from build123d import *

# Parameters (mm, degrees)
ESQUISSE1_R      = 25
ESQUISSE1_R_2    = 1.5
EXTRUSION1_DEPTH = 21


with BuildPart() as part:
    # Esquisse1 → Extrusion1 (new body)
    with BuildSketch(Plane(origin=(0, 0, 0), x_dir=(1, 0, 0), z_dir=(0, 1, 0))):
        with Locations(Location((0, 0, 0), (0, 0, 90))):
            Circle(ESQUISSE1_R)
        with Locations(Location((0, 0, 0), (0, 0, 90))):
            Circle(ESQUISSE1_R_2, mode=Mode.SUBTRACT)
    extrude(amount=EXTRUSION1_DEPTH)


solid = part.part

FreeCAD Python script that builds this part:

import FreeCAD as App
import Part
import Sketcher
Q = App.Units.Quantity

doc = App.newDocument("Part")
body = doc.addObject("PartDesign::Body", "Body")

# Sketch on XZ plane
sketch1 = body.newObject("Sketcher::SketchObject", "Sketch")
sketch1.AttachmentSupport = (doc.getObject("XZ_Plane"), [""])
sketch1.MapMode = "FlatFace"
sketch1.addGeometry([
    Part.Circle(App.Vector(0, 0, 0), App.Vector(0, 0, 1), 25),
    Part.Circle(App.Vector(0, 0, 0), App.Vector(0, 0, 1), 1.5),
], False)
sketch1.addConstraint([
    Sketcher.Constraint("Coincident", 0, 3, -1, 1),
    Sketcher.Constraint("Coincident", 1, 3, -1, 1),
    Sketcher.Constraint("Diameter", 0, Q("50 mm")),
    Sketcher.Constraint("Diameter", 1, Q("3 mm")),
])
pad1 = body.newObject("PartDesign::Pad", "Pad")
pad1.Profile = sketch1
pad1.Length = 21
pad1.Reversed = True

doc.recompute()
